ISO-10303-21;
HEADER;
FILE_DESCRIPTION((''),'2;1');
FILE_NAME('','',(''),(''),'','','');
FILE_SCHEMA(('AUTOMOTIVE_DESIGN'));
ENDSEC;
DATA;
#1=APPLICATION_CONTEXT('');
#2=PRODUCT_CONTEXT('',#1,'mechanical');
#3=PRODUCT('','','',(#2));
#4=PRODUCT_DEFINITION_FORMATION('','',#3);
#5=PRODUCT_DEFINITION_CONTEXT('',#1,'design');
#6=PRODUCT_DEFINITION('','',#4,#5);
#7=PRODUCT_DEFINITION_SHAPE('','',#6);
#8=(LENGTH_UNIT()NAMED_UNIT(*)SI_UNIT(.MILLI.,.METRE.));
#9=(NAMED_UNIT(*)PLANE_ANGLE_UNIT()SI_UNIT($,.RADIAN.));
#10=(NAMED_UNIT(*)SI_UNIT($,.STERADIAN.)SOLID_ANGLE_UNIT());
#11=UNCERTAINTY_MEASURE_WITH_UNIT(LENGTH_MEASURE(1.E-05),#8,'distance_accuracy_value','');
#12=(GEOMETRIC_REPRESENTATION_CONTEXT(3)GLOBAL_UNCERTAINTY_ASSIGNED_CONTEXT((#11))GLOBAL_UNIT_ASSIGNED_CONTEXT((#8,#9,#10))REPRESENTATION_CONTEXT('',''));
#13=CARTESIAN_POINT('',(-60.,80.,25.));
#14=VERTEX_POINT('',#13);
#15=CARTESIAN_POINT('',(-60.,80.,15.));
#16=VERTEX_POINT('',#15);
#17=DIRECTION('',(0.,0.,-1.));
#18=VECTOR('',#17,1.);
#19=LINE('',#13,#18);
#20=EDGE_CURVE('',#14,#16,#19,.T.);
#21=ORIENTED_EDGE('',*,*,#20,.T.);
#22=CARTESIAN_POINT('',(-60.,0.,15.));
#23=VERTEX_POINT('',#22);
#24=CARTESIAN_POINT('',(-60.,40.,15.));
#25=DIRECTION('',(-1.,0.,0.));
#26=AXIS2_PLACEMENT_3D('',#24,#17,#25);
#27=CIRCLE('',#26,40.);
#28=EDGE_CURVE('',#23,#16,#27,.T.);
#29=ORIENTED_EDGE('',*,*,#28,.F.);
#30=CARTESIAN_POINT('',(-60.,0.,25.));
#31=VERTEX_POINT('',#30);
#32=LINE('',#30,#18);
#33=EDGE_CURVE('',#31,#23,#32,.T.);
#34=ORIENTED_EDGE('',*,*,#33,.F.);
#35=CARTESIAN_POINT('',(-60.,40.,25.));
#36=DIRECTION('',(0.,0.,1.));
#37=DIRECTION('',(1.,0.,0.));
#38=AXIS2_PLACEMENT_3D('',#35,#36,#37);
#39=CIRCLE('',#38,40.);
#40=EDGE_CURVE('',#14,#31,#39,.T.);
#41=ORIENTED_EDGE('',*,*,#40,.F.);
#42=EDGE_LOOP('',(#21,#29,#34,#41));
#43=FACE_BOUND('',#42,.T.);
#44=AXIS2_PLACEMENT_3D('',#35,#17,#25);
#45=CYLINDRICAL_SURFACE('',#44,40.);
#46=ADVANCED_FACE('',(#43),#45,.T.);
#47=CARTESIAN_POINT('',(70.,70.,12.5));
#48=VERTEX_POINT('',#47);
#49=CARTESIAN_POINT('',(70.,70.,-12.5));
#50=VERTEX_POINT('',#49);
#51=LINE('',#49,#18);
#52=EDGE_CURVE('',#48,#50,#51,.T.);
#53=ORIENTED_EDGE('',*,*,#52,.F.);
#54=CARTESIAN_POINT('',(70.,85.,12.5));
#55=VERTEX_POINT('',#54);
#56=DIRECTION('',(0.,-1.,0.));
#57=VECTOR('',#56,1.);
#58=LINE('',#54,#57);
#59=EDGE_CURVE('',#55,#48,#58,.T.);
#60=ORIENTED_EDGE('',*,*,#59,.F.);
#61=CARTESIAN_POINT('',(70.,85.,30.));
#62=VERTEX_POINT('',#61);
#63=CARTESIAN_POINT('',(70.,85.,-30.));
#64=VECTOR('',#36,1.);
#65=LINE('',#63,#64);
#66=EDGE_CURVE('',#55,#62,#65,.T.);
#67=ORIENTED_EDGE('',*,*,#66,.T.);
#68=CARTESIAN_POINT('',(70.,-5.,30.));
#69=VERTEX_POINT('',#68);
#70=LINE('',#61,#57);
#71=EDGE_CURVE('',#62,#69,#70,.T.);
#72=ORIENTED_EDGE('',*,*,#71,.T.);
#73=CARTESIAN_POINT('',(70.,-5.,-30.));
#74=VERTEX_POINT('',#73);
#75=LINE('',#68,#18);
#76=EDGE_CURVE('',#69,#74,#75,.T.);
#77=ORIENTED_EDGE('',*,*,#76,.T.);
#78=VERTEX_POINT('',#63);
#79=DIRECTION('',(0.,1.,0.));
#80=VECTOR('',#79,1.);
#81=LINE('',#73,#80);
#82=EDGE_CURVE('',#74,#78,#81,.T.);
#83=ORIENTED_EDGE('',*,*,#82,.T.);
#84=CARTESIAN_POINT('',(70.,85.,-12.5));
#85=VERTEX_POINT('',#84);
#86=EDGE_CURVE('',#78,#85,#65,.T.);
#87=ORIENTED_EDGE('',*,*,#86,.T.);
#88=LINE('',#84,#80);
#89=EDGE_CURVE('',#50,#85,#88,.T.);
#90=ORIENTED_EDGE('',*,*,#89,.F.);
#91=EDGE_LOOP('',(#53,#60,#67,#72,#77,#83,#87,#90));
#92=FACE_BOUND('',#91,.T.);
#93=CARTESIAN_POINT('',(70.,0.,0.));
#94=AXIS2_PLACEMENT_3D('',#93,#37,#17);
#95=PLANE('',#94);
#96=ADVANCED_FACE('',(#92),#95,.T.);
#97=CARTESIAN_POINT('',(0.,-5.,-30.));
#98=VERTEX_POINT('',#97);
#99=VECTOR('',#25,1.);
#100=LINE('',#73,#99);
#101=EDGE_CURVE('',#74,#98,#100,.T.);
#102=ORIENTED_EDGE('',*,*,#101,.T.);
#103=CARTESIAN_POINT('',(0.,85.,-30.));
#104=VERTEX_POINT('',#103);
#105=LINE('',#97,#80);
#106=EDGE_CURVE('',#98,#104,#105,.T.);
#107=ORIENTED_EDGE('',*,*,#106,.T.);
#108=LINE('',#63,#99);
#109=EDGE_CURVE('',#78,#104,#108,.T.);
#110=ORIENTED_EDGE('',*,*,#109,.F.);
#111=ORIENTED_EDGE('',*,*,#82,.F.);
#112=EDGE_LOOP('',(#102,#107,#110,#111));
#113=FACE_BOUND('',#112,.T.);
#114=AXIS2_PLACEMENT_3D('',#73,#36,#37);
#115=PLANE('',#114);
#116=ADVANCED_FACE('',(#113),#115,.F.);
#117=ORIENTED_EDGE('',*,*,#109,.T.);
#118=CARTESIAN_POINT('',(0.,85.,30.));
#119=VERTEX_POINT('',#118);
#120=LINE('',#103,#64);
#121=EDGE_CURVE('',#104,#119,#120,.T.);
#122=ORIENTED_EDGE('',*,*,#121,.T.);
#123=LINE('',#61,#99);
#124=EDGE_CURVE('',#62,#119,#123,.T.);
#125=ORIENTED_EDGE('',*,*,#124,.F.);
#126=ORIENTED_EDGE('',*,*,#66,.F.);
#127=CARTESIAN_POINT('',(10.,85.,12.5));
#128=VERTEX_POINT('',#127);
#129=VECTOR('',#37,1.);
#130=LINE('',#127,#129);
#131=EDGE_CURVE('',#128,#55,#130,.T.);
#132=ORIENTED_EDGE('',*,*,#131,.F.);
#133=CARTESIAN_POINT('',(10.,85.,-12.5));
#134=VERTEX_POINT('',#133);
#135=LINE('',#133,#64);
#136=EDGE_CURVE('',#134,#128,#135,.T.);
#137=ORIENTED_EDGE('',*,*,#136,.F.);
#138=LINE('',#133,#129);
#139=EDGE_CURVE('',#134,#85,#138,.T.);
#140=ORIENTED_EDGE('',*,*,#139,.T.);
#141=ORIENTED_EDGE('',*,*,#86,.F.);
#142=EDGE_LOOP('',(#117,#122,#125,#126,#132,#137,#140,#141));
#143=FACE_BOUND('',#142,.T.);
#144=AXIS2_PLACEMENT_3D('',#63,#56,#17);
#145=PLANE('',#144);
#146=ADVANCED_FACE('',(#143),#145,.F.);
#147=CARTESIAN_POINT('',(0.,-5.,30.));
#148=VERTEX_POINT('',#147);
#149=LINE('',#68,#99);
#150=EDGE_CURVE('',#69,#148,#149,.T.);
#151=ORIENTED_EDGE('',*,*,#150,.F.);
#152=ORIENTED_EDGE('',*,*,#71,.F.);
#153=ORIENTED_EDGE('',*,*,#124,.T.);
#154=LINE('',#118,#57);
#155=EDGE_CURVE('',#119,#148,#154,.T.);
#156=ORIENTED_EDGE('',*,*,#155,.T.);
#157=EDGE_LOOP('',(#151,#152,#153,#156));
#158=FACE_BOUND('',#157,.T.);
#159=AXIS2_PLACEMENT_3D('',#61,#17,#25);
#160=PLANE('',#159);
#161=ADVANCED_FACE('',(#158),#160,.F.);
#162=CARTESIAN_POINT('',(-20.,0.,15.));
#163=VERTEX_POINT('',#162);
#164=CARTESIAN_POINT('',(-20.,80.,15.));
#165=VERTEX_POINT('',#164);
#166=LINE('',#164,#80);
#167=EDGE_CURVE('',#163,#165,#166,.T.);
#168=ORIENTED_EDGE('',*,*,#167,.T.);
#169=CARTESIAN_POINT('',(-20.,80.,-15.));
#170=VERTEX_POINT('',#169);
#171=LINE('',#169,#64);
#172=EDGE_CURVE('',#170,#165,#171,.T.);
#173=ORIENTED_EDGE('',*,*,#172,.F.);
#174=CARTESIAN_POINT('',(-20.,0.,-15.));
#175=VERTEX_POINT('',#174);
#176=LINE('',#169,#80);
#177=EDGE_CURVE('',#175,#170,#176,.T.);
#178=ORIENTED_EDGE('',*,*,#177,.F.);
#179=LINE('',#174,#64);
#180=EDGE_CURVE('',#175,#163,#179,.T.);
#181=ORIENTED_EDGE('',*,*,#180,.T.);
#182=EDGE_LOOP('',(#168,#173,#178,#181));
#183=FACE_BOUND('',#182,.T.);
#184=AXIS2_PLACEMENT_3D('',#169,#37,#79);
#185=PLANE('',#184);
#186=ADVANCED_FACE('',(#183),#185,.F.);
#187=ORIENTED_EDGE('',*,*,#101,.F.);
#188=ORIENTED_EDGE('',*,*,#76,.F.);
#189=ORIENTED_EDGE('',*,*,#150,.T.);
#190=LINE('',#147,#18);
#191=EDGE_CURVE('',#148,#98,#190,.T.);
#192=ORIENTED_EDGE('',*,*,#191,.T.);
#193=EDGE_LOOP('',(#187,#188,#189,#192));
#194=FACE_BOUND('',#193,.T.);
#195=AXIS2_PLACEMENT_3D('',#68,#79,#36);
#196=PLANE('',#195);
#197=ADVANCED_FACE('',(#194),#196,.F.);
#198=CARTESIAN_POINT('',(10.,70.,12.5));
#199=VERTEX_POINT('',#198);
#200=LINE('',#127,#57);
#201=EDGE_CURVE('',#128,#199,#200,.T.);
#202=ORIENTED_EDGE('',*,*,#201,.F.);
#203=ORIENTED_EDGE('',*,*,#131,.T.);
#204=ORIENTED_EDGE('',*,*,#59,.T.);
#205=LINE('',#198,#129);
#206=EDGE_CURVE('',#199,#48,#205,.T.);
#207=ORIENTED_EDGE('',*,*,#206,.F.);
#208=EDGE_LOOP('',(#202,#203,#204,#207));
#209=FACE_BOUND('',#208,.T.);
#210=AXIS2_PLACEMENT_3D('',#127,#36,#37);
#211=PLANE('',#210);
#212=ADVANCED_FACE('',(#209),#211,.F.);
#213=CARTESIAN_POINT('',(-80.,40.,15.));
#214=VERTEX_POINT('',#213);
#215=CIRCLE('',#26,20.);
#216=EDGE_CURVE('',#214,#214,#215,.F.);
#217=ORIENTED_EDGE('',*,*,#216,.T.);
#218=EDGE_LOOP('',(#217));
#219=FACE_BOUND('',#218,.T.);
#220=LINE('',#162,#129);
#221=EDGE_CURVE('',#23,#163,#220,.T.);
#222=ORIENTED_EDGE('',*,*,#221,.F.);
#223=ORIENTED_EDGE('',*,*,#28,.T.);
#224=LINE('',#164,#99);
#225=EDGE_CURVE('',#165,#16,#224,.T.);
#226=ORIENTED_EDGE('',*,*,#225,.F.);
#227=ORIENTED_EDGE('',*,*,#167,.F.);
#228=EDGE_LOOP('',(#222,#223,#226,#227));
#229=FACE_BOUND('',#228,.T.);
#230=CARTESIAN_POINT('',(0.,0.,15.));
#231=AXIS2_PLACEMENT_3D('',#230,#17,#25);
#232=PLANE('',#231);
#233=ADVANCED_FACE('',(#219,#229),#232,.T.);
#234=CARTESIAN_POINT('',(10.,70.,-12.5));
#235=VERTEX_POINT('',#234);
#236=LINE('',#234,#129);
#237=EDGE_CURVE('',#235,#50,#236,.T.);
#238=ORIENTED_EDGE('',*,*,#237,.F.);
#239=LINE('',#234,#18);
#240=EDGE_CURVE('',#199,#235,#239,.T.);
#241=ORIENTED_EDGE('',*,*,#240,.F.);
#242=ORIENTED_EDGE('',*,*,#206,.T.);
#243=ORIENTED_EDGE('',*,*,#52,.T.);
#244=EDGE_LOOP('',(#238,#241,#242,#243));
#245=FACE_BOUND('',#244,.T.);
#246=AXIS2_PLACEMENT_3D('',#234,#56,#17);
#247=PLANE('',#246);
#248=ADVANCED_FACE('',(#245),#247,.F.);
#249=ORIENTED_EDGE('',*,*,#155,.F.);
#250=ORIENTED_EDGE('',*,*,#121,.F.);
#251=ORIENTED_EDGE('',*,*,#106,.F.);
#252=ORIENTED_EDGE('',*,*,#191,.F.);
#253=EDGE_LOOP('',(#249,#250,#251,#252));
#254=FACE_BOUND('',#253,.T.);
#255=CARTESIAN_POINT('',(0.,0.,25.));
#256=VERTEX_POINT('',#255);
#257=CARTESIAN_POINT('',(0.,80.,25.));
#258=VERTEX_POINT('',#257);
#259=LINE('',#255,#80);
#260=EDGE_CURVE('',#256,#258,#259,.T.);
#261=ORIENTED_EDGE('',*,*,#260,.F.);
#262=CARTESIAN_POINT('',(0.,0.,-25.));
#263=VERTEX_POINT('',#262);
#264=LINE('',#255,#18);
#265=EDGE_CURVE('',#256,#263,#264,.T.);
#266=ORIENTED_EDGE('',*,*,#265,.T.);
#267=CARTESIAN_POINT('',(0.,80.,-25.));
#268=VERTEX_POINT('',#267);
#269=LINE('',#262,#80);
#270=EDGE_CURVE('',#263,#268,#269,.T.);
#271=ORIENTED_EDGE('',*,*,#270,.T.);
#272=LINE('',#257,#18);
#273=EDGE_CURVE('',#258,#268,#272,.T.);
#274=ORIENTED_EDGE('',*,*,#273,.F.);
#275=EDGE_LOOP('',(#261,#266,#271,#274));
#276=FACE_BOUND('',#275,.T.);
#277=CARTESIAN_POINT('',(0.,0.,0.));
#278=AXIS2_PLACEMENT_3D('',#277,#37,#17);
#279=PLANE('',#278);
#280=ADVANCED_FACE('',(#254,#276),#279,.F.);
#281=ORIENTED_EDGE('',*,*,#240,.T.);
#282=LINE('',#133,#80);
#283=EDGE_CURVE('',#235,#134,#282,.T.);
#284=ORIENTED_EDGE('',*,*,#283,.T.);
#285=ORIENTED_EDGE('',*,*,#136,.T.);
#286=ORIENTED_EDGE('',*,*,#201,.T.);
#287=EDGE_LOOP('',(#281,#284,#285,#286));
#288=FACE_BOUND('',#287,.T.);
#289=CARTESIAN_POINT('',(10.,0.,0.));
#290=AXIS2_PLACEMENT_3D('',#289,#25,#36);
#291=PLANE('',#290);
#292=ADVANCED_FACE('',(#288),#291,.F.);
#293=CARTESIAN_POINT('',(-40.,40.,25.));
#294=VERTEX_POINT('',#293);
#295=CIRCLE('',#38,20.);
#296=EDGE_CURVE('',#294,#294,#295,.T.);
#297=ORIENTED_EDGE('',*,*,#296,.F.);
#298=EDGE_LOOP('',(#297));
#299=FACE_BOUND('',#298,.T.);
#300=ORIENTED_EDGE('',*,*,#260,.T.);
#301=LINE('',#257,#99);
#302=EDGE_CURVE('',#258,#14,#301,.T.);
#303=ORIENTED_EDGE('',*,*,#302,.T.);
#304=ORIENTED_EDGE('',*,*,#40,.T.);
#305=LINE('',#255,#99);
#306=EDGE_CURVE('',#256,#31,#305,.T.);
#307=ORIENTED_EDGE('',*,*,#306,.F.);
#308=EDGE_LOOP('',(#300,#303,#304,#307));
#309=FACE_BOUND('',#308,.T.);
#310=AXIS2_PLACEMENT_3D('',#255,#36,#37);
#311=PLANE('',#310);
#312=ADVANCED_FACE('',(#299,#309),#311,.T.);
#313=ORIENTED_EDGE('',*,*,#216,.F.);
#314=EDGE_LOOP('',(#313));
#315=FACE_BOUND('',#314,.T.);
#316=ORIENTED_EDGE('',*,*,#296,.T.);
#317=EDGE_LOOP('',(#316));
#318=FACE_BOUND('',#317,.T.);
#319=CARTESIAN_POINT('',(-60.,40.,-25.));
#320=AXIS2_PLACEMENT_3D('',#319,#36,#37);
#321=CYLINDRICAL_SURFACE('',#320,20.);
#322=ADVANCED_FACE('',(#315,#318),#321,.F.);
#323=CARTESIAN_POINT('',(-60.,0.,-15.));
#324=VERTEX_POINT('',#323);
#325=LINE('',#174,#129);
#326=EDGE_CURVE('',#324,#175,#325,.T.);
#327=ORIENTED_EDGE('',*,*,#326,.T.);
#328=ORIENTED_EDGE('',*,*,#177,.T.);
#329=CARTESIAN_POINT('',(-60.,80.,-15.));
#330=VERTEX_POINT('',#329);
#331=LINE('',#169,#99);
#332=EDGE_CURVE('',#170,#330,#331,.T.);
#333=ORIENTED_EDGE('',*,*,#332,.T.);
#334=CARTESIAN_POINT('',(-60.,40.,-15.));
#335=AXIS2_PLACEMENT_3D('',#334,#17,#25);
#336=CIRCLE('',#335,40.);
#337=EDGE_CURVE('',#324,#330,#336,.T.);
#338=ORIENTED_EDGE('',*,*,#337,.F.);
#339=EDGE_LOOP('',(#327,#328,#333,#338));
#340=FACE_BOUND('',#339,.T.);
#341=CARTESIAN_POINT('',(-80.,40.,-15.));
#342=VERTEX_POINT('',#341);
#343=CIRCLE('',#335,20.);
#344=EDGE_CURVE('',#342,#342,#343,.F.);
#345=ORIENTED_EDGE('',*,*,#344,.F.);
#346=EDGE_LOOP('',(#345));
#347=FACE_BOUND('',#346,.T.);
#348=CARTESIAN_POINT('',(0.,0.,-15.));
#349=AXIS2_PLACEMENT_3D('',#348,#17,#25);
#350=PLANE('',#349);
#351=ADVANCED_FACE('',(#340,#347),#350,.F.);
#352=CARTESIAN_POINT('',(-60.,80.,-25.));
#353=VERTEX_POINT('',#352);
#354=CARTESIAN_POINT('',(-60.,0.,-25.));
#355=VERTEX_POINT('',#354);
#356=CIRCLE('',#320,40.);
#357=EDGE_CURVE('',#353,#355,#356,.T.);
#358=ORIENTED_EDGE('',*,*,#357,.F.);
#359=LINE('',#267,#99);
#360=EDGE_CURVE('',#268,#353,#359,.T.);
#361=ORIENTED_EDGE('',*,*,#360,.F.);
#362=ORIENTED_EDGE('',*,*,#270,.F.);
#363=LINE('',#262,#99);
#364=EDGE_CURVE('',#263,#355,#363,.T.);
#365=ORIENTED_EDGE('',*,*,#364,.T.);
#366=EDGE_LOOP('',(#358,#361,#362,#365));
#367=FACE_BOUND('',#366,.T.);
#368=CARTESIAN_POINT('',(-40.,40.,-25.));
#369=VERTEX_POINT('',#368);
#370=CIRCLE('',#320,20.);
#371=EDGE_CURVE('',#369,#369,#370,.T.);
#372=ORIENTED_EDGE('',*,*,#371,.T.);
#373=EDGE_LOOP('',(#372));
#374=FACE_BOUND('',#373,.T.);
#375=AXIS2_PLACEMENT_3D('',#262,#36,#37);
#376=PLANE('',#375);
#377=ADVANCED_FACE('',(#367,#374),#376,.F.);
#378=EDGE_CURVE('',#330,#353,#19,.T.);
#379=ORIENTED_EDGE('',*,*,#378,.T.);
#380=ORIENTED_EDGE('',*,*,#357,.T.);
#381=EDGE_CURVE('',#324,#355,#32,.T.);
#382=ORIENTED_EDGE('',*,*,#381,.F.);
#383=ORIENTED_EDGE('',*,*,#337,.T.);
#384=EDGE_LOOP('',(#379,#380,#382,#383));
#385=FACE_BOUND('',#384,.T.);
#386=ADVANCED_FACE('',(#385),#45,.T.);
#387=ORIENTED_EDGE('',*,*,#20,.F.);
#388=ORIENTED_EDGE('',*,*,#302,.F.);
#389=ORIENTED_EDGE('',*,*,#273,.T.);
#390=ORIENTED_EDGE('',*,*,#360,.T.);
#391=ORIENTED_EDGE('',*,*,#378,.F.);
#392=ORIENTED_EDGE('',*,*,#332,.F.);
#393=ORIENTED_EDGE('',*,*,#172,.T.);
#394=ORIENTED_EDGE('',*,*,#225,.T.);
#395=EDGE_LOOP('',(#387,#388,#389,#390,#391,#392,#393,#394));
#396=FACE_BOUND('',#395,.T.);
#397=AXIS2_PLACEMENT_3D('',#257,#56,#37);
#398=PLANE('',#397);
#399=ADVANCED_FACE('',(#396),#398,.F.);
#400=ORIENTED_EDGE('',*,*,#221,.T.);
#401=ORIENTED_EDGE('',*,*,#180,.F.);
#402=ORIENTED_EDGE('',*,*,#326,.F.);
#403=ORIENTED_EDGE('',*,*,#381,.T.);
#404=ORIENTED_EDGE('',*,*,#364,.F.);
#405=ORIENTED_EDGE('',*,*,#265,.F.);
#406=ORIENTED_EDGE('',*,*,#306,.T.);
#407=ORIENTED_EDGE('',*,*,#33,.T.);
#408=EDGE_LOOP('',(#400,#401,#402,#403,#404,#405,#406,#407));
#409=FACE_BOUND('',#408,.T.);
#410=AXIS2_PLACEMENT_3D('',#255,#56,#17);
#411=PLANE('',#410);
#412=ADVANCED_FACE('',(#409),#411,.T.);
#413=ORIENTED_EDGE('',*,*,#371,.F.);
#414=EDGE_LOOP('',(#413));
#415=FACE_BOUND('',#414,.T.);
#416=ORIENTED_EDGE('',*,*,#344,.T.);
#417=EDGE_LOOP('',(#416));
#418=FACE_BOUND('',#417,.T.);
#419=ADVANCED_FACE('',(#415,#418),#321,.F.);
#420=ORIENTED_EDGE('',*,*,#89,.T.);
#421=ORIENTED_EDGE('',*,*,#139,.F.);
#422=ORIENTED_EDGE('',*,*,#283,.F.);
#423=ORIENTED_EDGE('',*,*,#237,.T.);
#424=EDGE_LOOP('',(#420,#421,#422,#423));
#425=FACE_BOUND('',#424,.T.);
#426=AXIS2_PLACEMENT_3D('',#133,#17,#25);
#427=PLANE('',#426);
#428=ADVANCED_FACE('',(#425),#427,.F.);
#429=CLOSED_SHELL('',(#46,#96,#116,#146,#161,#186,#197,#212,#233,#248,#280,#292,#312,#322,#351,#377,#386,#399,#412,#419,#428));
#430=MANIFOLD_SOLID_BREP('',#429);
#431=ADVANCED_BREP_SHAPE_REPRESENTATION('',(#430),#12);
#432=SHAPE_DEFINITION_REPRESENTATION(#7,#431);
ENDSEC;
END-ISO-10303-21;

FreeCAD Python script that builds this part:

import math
import FreeCAD as App
import Part
import Sketcher
Q = App.Units.Quantity


def add_polygon(sketch, points):
    """Adds a closed chain of lines whose ends are joined by coincident constraints."""
    first, n = sketch.GeometryCount, len(points)
    for a, b in zip(points, points[1:] + points[:1]):
        sketch.addGeometry(Part.LineSegment(App.Vector(*a, 0), App.Vector(*b, 0)), False)
    for i in range(n):
        sketch.addConstraint(Sketcher.Constraint("Coincident", first + i, 2, first + (i + 1) % n, 1))

doc = App.newDocument("Part")
body = doc.addObject("PartDesign::Body", "Body")

# Sketch on XY plane
sketch1 = body.newObject("Sketcher::SketchObject", "Sketch")
sketch1.AttachmentSupport = (doc.getObject("XY_Plane"), [""])
sketch1.MapMode = "FlatFace"
sketch1.addGeometry([
    Part.LineSegment(App.Vector(-60, 0, 0), App.Vector(0, 0, 0)),  # 0
    Part.LineSegment(App.Vector(0, 0, 0), App.Vector(0, 80, 0)),  # 1
    Part.LineSegment(App.Vector(0, 80, 0), App.Vector(-60, 80, 0)),  # 2
    Part.ArcOfCircle(Part.Circle(App.Vector(-60, 40, 0), App.Vector(0, 0, 1), 40), math.radians(90), math.radians(180)),  # 3
    Part.ArcOfCircle(Part.Circle(App.Vector(-60, 40, 0), App.Vector(0, 0, 1), 40), math.radians(180), math.radians(270)),  # 4
], False)
sketch1.addConstraint([
    Sketcher.Constraint("Coincident", 0, 2, 1, 1),
    Sketcher.Constraint("Coincident", 1, 2, 2, 1),
    Sketcher.Constraint("Tangent", 2, 2, 3, 1),
    Sketcher.Constraint("Tangent", 3, 2, 4, 1),
    Sketcher.Constraint("Tangent", 4, 2, 0, 1),
    Sketcher.Constraint("Horizontal", 0),
    Sketcher.Constraint("Vertical", 1),
    Sketcher.Constraint("Horizontal", 2),
    Sketcher.Constraint("Coincident", 0, 2, -1, 1),
    Sketcher.Constraint("Equal", 3, 4),
    Sketcher.Constraint("Horizontal", 4, 3, 3, 2),
    Sketcher.Constraint("Radius", 3, Q("40 mm")),
    Sketcher.Constraint("DistanceX", 0, 1, 0, 2, Q("60 mm")),
])
pad1 = body.newObject("PartDesign::Pad", "Pad")
pad1.Profile = sketch1
pad1.Length = 50
pad1.Midplane = True

# Sketch on XY plane
sketch2 = body.newObject("Sketcher::SketchObject", "Sketch001")
sketch2.AttachmentSupport = (doc.getObject("XY_Plane"), [""])
sketch2.MapMode = "FlatFace"
sketch2.AttachmentOffset = App.Placement(App.Vector(0, 0, 25), App.Rotation())
sketch2.addGeometry(Part.Circle(App.Vector(-60, 40, 0), App.Vector(0, 0, 1), 20), False)
sketch2.addConstraint([
    Sketcher.Constraint("Diameter", 0, Q("40 mm")),
    Sketcher.Constraint("DistanceX", 0, 3, -1, 1, Q("60 mm")),
    Sketcher.Constraint("DistanceY", -1, 1, 0, 3, Q("40 mm")),
])
pocket1 = body.newObject("PartDesign::Pocket", "Pocket")
pocket1.Profile = sketch2
pocket1.Type = "ThroughAll"

# Sketch on XY plane
sketch3 = body.newObject("Sketcher::SketchObject", "Sketch002")
sketch3.AttachmentSupport = (doc.getObject("XY_Plane"), [""])
sketch3.MapMode = "FlatFace"
add_polygon(sketch3, [(-100, 80), (-100, 0), (-20, 0), (-20, 80)])  # lines 0-3
sketch3.addConstraint([
    Sketcher.Constraint("Vertical", 0),
    Sketcher.Constraint("Horizontal", 1),
    Sketcher.Constraint("Vertical", 2),
    Sketcher.Constraint("Horizontal", 3),
    Sketcher.Constraint("PointOnObject", 0, 2, -1),
    Sketcher.Constraint("Equal", 3, 0),
    Sketcher.Constraint("DistanceX", 1, 1, 1, 2, Q("80 mm")),
    Sketcher.Constraint("DistanceX", 0, 2, -1, 1, Q("100 mm")),
])
pocket2 = body.newObject("PartDesign::Pocket", "Pocket001")
pocket2.Profile = sketch3
pocket2.Length = 30
pocket2.Midplane = True

# Sketch on YZ plane
sketch4 = body.newObject("Sketcher::SketchObject", "Sketch003")
sketch4.AttachmentSupport = (doc.getObject("YZ_Plane"), [""])
sketch4.MapMode = "FlatFace"
add_polygon(sketch4, [(85, 30), (-5, 30), (-5, -30), (85, -30)])  # lines 0-3
sketch4.addConstraint([
    Sketcher.Constraint("Horizontal", 0),
    Sketcher.Constraint("Vertical", 1),
    Sketcher.Constraint("Horizontal", 2),
    Sketcher.Constraint("Vertical", 3),
    Sketcher.Constraint("DistanceX", 0, 2, 0, 1, Q("90 mm")),
    Sketcher.Constraint("DistanceY", 1, 2, 1, 1, Q("60 mm")),
    Sketcher.Constraint("DistanceX", 0, 2, -1, 1, Q("5 mm")),
    Sketcher.Constraint("DistanceY", -1, 1, 0, 2, Q("30 mm")),
])
pad2 = body.newObject("PartDesign::Pad", "Pad001")
pad2.Profile = sketch4
pad2.Length = 70

# Sketch on YZ plane
sketch5 = body.newObject("Sketcher::SketchObject", "Sketch004")
sketch5.AttachmentSupport = (doc.getObject("YZ_Plane"), [""])
sketch5.MapMode = "FlatFace"
sketch5.AttachmentOffset = App.Placement(App.Vector(0, 0, 70), App.Rotation())
add_polygon(sketch5, [(85, 12), (70, 12), (70, -12), (85, -12)])  # lines 0-3
sketch5.addConstraint([
    Sketcher.Constraint("Horizontal", 0),
    Sketcher.Constraint("Vertical", 1),
    Sketcher.Constraint("Horizontal", 2),
    Sketcher.Constraint("Vertical", 3),
    Sketcher.Constraint("DistanceX", 0, 2, 0, 1, Q("15 mm")),
    Sketcher.Constraint("DistanceY", 1, 2, 1, 1, Q("25 mm")),
    Sketcher.Constraint("DistanceX", -1, 1, 0, 2, Q("70 mm")),
    Sketcher.Constraint("DistanceY", -1, 1, 0, 2, Q("12.5 mm")),
])
pocket3 = body.newObject("PartDesign::Pocket", "Pocket002")
pocket3.Profile = sketch5
pocket3.Length = 60

doc.recompute()
